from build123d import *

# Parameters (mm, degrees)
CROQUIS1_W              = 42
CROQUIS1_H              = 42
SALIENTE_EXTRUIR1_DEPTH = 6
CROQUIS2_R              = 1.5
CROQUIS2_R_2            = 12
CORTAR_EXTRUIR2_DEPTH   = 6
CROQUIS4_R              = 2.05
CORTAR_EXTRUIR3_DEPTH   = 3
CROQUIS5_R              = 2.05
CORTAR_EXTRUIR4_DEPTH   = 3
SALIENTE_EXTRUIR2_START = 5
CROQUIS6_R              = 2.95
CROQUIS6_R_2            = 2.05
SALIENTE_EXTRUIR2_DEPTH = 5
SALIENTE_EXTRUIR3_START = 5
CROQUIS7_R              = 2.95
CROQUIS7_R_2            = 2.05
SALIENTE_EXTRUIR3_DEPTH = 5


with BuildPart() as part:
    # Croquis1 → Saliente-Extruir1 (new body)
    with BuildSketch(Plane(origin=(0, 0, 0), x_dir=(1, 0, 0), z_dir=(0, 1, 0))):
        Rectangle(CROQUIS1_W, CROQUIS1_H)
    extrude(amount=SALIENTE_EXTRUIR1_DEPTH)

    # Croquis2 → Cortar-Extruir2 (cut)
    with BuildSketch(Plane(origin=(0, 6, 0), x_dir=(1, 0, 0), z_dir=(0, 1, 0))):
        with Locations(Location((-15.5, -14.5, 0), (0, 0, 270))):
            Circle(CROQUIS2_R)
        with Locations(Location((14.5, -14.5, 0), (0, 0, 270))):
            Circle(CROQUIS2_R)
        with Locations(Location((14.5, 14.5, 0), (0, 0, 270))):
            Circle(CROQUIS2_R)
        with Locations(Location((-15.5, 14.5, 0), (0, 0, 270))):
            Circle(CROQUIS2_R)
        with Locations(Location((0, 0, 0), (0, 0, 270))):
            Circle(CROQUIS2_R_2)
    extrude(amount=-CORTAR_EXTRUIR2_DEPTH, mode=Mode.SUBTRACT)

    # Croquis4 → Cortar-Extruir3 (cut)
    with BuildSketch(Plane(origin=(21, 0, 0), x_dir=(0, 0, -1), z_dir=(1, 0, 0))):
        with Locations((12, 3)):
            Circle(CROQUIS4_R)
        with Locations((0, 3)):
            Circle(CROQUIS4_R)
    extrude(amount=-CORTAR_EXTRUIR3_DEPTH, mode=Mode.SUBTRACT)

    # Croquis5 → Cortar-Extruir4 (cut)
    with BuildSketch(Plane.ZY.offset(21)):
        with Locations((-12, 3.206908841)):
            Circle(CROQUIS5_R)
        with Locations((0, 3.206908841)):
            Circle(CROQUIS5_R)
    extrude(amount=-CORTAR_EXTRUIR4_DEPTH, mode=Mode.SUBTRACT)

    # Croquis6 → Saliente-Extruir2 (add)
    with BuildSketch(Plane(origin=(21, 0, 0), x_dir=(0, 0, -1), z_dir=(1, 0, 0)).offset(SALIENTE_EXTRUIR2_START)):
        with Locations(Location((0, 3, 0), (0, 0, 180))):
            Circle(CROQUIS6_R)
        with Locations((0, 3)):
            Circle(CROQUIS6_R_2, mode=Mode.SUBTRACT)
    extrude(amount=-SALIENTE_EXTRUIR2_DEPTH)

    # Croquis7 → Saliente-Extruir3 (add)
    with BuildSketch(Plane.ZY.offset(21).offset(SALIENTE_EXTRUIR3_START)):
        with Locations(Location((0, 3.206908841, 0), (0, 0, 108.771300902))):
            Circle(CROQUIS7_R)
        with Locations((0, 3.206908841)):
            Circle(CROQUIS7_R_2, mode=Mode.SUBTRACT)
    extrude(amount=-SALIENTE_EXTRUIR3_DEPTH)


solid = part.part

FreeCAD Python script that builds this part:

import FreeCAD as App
import Part
import Sketcher
from FreeCAD import Vector
Q = App.Units.Quantity

doc = App.newDocument("Part")
body = doc.addObject("PartDesign::Body", "Body")

# Sketch on XZ plane
sketch1 = doc.addObject("Sketcher::SketchObject", "Sketch")
body.addObject(sketch1)
sketch1.AttachmentSupport = (doc.XZ_Plane, [""])
sketch1.MapMode = "FlatFace"
sketch1.addGeometry([
    Part.LineSegment(Vector(-21, -21, 0), Vector(-21, 21, 0)),
    Part.LineSegment(Vector(-21, 21, 0), Vector(21, 21, 0)),
    Part.LineSegment(Vector(21, 21, 0), Vector(21, -21, 0)),
    Part.LineSegment(Vector(21, -21, 0), Vector(-21, -21, 0)),
], False)
sketch1.addConstraint([
    Sketcher.Constraint("Coincident", 0, 2, 1, 1),
    Sketcher.Constraint("Coincident", 1, 2, 2, 1),
    Sketcher.Constraint("Coincident", 2, 2, 3, 1),
    Sketcher.Constraint("Coincident", 3, 2, 0, 1),
    Sketcher.Constraint("Vertical", 0),
    Sketcher.Constraint("Horizontal", 1),
    Sketcher.Constraint("Vertical", 2),
    Sketcher.Constraint("Horizontal", 3),
    Sketcher.Constraint("Symmetric", 0, 2, 2, 2, -1, 1),
    Sketcher.Constraint("Equal", 3, 0),
    Sketcher.Constraint("DistanceX", 1, 1, 1, 2, Q("42 mm")),
])
pad1 = doc.addObject("PartDesign::Pad", "Pad")
body.addObject(pad1)
pad1.Profile = sketch1
pad1.Length = 6
pad1.Reversed = True

# Sketch on XZ plane
sketch2 = doc.addObject("Sketcher::SketchObject", "Sketch001")
body.addObject(sketch2)
sketch2.AttachmentSupport = (doc.XZ_Plane, [""])
sketch2.MapMode = "FlatFace"
sketch2.AttachmentOffset = App.Placement(Vector(0, 0, -6), App.Rotation())
sketch2.addGeometry([
    Part.Circle(Vector(-15.5, 14.5, 0), Vector(0, 0, 1), 1.5),  # 0
    Part.Circle(Vector(14.5, 14.5, 0), Vector(0, 0, 1), 1.5),  # 1
    Part.Circle(Vector(14.5, -14.5, 0), Vector(0, 0, 1), 1.5),  # 2
    Part.Circle(Vector(-15.5, -14.5, 0), Vector(0, 0, 1), 1.5),  # 3
    Part.Circle(Vector(0, 0, 0), Vector(0, 0, 1), 12),  # 4
], False)
sketch2.addConstraint([
    Sketcher.Constraint("Coincident", 4, 3, -1, 1),
    Sketcher.Constraint("Equal", 0, 1),
    Sketcher.Constraint("Equal", 1, 2),
    Sketcher.Constraint("Equal", 2, 3),
    Sketcher.Constraint("Symmetric", 1, 3, 2, 3, -1),
    Sketcher.Constraint("Symmetric", 0, 3, 3, 3, -1),
    Sketcher.Constraint("Horizontal", 0, 3, 1, 3),
    Sketcher.Constraint("Diameter", 0, Q("3 mm")),
    Sketcher.Constraint("Diameter", 4, Q("24 mm")),
    Sketcher.Constraint("DistanceX", 0, 3, 1, 3, Q("30 mm")),
    Sketcher.Constraint("DistanceY", 2, 3, 1, 3, Q("29 mm")),
    Sketcher.Constraint("DistanceX", 0, 3, -1, 1, Q("15.5 mm")),
])
pocket1 = doc.addObject("PartDesign::Pocket", "Pocket")
body.addObject(pocket1)
pocket1.Profile = sketch2
pocket1.Length = 6
pocket1.Reversed = True

# Sketch on YZ plane
sketch3 = doc.addObject("Sketcher::SketchObject", "Sketch002")
body.addObject(sketch3)
sketch3.AttachmentSupport = (doc.YZ_Plane, [""])
sketch3.MapMode = "FlatFace"
sketch3.AttachmentOffset = App.Placement(Vector(0, 0, 21), App.Rotation())
sketch3.addGeometry([
    Part.Circle(Vector(3, -12, 0), Vector(0, 0, 1), 2),
    Part.Circle(Vector(3, 0, 0), Vector(0, 0, 1), 2),
], False)
sketch3.addConstraint([
    Sketcher.Constraint("Equal", 0, 1),
    Sketcher.Constraint("PointOnObject", 1, 3, -1),
    Sketcher.Constraint("Vertical", 0, 3, 1, 3),
    Sketcher.Constraint("Diameter", 0, Q("4.1 mm")),
    Sketcher.Constraint("DistanceX", -1, 1, 0, 3, Q("3 mm")),
    Sketcher.Constraint("DistanceY", 0, 3, -1, 1, Q("12 mm")),
])
pocket2 = doc.addObject("PartDesign::Pocket", "Pocket001")
body.addObject(pocket2)
pocket2.Profile = sketch3
pocket2.Length = 3

# Sketch on YZ plane
sketch4 = doc.addObject("Sketcher::SketchObject", "Sketch003")
body.addObject(sketch4)
sketch4.AttachmentSupport = (doc.YZ_Plane, [""])
sketch4.MapMode = "FlatFace"
sketch4.AttachmentOffset = App.Placement(Vector(0, 0, -21), App.Rotation())
sketch4.addGeometry([
    Part.Circle(Vector(3.2, -12, 0), Vector(0, 0, 1), 2),
    Part.Circle(Vector(3.2, 0, 0), Vector(0, 0, 1), 2),
], False)
sketch4.addConstraint([
    Sketcher.Constraint("Equal", 0, 1),
    Sketcher.Constraint("PointOnObject", 1, 3, -1),
    Sketcher.Constraint("Vertical", 0, 3, 1, 3),
    Sketcher.Constraint("Diameter", 0, Q("4.1 mm")),
    Sketcher.Constraint("DistanceY", 0, 3, -1, 1, Q("12 mm")),
    Sketcher.Constraint("DistanceX", -1, 1, 0, 3, Q("3.206909 mm")),
])
pocket3 = doc.addObject("PartDesign::Pocket", "Pocket002")
body.addObject(pocket3)
pocket3.Profile = sketch4
pocket3.Length = 3
pocket3.Reversed = True

# Sketch on YZ plane
sketch5 = doc.addObject("Sketcher::SketchObject", "Sketch004")
body.addObject(sketch5)
sketch5.AttachmentSupport = (doc.YZ_Plane, [""])
sketch5.MapMode = "FlatFace"
sketch5.AttachmentOffset = App.Placement(Vector(0, 0, 26), App.Rotation())
sketch5.addGeometry([
    Part.Circle(Vector(3, 0, 0), Vector(0, 0, 1), 3),
    Part.Circle(Vector(3, 0, 0), Vector(0, 0, 1), 2),
], False)
sketch5.addConstraint([
    Sketcher.Constraint("Coincident", 1, 3, 0, 3),
    Sketcher.Constraint("PointOnObject", 0, 3, -1),
    Sketcher.Constraint("Diameter", 0, Q("5.9 mm")),
    Sketcher.Constraint("Diameter", 1, Q("4.1 mm")),
    Sketcher.Constraint("DistanceX", -1, 1, 0, 3, Q("3 mm")),
])
pad2 = doc.addObject("PartDesign::Pad", "Pad001")
body.addObject(pad2)
pad2.Profile = sketch5
pad2.Length = 5
pad2.Reversed = True

# Sketch on YZ plane
sketch6 = doc.addObject("Sketcher::SketchObject", "Sketch005")
body.addObject(sketch6)
sketch6.AttachmentSupport = (doc.YZ_Plane, [""])
sketch6.MapMode = "FlatFace"
sketch6.AttachmentOffset = App.Placement(Vector(0, 0, -26), App.Rotation())
sketch6.addGeometry([
    Part.Circle(Vector(3.2, 0, 0), Vector(0, 0, 1), 3),
    Part.Circle(Vector(3.2, 0, 0), Vector(0, 0, 1), 2),
], False)
sketch6.addConstraint([
    Sketcher.Constraint("Coincident", 1, 3, 0, 3),
    Sketcher.Constraint("PointOnObject", 0, 3, -1),
    Sketcher.Constraint("Diameter", 0, Q("5.9 mm")),
    Sketcher.Constraint("Diameter", 1, Q("4.1 mm")),
    Sketcher.Constraint("DistanceX", -1, 1, 0, 3, Q("3.206909 mm")),
])
pad3 = doc.addObject("PartDesign::Pad", "Pad002")
body.addObject(pad3)
pad3.Profile = sketch6
pad3.Length = 5

doc.recompute()
